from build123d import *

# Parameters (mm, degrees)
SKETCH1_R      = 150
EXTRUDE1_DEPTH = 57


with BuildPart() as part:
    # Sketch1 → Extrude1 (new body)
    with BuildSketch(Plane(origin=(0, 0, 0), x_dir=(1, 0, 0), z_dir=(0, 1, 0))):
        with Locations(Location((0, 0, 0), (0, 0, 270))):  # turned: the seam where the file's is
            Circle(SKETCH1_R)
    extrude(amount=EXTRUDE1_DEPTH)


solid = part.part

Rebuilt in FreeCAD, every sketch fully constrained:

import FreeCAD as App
import Part
import Sketcher

doc = App.newDocument("Part")
body = doc.addObject("PartDesign::Body", "Body")

# Sketch on XZ plane
sketch1 = body.newObject("Sketcher::SketchObject", "Sketch")
sketch1.AttachmentSupport = (doc.getObject("XZ_Plane"), [""])
sketch1.MapMode = "FlatFace"
sketch1.addGeometry(Part.Circle(App.Vector(0, 0, 0), App.Vector(0, 0, 1), 150), False)
sketch1.addConstraint([
    Sketcher.Constraint("Coincident", 0, 3, -1, 1),
    Sketcher.Constraint("Diameter", 0, 300.0),
])
pad1 = body.newObject("PartDesign::Pad", "Pad")
pad1.Profile = sketch1
pad1.Length = 57
pad1.Reversed = True

doc.recompute()
